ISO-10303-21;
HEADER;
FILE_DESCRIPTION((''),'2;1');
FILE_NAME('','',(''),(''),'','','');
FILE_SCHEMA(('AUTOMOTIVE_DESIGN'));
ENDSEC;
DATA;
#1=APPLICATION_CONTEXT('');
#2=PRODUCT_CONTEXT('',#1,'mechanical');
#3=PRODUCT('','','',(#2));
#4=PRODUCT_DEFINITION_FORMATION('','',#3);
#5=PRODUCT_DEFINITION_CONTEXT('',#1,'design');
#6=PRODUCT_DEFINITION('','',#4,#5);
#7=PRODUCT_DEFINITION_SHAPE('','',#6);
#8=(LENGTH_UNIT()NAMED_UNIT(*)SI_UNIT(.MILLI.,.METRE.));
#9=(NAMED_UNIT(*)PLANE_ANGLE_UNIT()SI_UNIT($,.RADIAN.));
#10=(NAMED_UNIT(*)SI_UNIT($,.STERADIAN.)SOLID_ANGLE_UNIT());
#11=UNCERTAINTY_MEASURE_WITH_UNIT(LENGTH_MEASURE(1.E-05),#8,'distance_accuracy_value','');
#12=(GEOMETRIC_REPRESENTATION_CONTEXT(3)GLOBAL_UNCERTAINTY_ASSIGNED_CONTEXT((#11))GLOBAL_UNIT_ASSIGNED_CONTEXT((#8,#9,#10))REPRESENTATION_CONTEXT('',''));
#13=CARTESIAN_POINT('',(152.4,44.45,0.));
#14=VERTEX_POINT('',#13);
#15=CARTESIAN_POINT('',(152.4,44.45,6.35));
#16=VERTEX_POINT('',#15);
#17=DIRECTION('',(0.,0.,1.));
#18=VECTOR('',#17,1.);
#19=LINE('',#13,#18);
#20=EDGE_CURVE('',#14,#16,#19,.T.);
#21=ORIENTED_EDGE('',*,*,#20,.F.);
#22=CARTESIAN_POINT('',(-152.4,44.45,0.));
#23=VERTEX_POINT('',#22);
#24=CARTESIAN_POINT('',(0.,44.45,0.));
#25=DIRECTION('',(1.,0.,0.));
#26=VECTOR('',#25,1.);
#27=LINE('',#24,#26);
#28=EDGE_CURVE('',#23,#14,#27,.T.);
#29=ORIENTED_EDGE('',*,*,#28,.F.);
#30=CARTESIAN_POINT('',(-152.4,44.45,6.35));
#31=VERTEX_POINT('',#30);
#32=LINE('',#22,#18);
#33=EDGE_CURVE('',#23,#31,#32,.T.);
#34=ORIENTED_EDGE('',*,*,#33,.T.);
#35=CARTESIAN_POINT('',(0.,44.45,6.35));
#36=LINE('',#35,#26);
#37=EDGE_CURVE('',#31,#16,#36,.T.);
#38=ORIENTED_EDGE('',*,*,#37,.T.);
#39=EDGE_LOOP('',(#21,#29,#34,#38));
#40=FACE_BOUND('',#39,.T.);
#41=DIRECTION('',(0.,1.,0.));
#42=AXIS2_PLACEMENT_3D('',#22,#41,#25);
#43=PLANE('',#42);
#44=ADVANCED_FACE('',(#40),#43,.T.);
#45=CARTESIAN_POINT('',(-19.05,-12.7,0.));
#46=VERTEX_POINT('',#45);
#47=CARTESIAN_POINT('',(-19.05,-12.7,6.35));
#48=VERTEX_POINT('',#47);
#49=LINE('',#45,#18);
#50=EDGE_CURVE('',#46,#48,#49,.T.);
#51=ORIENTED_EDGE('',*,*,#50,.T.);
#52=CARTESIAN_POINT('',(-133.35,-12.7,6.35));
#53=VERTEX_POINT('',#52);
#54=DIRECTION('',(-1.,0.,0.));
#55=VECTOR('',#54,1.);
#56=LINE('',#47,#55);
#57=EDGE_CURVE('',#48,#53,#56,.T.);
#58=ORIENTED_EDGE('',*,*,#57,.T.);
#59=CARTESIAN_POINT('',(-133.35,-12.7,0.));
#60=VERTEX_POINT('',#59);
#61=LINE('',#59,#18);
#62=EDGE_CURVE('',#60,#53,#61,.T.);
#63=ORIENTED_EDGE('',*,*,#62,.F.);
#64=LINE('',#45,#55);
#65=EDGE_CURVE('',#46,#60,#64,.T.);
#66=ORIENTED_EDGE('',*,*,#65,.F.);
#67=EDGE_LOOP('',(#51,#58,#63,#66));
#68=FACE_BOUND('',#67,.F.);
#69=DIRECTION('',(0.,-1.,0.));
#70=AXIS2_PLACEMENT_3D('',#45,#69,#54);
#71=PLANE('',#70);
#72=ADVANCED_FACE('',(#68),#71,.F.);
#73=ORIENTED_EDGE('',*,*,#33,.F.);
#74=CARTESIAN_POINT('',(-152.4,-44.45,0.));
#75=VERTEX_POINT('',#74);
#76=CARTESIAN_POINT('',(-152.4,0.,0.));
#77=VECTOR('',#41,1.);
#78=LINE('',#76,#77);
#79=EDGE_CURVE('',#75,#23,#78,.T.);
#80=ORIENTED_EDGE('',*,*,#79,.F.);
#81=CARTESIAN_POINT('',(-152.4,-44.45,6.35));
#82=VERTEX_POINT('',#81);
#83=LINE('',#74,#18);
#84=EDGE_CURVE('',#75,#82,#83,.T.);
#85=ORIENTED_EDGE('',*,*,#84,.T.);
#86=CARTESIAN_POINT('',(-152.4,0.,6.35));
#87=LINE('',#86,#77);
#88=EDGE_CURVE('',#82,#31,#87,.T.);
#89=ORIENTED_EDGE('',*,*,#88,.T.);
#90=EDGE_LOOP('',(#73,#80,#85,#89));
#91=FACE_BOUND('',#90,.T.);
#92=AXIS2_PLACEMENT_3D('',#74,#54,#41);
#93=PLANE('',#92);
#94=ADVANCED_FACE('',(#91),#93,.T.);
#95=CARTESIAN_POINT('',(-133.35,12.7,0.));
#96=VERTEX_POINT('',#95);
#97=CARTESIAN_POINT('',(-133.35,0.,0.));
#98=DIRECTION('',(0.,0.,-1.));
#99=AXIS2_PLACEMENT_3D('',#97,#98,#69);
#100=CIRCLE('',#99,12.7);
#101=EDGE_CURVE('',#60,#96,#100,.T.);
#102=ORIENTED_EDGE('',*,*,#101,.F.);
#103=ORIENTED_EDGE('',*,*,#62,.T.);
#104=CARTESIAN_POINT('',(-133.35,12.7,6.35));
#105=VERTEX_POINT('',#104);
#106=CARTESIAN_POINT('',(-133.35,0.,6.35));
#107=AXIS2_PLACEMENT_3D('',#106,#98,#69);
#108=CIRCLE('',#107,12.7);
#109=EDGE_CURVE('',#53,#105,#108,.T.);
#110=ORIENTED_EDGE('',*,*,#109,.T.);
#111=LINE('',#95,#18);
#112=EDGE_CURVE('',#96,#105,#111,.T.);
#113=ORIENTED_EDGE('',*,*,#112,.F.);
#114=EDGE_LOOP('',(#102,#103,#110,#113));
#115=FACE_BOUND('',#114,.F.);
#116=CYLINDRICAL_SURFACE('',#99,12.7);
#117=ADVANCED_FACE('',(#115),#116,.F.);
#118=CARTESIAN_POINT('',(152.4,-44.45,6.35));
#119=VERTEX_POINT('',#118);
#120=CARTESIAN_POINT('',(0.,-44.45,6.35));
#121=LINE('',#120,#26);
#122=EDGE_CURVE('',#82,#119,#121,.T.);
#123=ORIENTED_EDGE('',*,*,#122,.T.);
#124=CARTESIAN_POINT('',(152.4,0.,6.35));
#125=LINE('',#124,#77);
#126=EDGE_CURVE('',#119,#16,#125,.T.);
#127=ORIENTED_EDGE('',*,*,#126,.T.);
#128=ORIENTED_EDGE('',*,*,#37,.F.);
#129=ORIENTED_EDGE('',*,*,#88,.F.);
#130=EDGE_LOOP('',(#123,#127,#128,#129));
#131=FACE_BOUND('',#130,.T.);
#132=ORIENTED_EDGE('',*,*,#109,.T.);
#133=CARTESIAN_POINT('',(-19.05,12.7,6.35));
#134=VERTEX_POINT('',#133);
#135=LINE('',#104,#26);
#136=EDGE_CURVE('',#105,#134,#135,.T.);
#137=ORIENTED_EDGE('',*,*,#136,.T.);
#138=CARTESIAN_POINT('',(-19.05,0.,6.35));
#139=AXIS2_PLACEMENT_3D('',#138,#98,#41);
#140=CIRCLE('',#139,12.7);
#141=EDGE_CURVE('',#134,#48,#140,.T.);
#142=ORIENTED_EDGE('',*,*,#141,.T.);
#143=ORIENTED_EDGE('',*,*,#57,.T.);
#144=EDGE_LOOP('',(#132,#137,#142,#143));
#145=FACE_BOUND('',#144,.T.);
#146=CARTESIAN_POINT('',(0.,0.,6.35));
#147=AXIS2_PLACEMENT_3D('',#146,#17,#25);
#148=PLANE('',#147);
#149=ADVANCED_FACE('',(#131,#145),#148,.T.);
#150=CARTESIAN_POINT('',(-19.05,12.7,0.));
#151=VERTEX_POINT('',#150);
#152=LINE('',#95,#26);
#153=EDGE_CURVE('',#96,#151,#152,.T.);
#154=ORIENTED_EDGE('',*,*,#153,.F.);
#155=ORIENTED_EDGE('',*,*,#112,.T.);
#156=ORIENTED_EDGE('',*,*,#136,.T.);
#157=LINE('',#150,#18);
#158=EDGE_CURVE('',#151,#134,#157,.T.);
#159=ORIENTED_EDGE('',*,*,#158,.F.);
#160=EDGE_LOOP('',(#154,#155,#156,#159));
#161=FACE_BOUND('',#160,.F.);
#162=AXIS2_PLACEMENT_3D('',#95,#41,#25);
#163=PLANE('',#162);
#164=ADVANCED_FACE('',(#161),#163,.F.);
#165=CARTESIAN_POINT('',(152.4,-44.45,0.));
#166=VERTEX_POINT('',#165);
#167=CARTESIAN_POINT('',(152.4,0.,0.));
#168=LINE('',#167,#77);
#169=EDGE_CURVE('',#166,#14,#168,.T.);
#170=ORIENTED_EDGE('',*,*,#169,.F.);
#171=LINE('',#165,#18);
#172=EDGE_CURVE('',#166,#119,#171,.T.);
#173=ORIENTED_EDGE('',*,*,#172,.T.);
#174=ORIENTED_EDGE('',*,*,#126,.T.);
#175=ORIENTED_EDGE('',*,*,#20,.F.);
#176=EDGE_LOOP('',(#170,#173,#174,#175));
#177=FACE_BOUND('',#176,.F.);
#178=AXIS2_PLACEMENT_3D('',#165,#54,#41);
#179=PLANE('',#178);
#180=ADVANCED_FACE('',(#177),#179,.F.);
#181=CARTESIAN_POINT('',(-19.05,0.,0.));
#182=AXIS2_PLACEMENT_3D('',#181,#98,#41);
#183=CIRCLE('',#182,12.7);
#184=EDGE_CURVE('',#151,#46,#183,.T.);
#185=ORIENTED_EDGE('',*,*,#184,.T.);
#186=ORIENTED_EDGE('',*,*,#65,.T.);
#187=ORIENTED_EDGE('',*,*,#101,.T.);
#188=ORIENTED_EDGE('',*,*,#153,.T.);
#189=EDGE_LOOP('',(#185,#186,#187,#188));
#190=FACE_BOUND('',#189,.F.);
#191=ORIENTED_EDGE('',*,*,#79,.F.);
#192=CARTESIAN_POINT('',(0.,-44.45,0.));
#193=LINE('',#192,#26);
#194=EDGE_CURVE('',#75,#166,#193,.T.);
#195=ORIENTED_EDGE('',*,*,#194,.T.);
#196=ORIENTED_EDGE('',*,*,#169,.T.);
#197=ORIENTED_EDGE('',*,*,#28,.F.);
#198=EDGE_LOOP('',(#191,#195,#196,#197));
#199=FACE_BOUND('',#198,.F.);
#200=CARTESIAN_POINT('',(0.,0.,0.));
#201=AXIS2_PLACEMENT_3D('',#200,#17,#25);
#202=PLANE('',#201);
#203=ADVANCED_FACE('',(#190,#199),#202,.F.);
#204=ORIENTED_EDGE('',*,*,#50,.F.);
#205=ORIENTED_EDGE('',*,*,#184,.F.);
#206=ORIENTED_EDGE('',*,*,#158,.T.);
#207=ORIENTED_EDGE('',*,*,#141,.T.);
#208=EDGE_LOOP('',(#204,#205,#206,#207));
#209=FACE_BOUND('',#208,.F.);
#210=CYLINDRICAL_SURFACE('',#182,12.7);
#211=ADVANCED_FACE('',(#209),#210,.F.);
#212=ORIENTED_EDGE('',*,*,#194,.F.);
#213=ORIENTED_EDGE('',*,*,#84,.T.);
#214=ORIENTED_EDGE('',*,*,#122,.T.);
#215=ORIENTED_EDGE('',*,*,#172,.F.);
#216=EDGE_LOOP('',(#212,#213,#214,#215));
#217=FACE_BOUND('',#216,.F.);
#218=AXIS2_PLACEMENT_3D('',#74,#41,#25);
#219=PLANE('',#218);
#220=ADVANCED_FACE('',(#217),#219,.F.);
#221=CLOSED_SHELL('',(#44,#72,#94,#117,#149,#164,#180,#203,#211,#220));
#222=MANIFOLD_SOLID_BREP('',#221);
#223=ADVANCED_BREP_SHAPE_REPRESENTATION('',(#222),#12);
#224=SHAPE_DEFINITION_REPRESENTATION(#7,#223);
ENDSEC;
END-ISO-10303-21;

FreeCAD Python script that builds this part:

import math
import FreeCAD as App
import Part
import Sketcher
Q = App.Units.Quantity


def add_polygon(sketch, points):
    """Adds a closed chain of lines whose ends are joined by coincident constraints."""
    first, n = sketch.GeometryCount, len(points)
    for a, b in zip(points, points[1:] + points[:1]):
        sketch.addGeometry(Part.LineSegment(App.Vector(*a, 0), App.Vector(*b, 0)), False)
    for i in range(n):
        sketch.addConstraint(Sketcher.Constraint("Coincident", first + i, 2, first + (i + 1) % n, 1))

doc = App.newDocument("Part")
body = doc.addObject("PartDesign::Body", "Body")

sketch1 = doc.addObject("Sketcher::SketchObject", "Sketch")
body.addObject(sketch1)
sketch1.AttachmentSupport = (doc.XY_Plane, [""])
sketch1.MapMode = "FlatFace"
add_polygon(sketch1, [(-152, 44), (-152, -44), (152, -44), (152, 44)])
sketch1.addGeometry(Part.LineSegment(App.Vector(-19, -13, 0), App.Vector(-133, -13, 0)), False)
sketch1.addGeometry(Part.ArcOfCircle(Part.Circle(App.Vector(-133, 0, 0), App.Vector(0, 0, 1), 13), math.radians(90), math.radians(270)), False)
sketch1.addGeometry(Part.LineSegment(App.Vector(-133, 13, 0), App.Vector(-19, 13, 0)), False)
sketch1.addGeometry(Part.ArcOfCircle(Part.Circle(App.Vector(-19, 0, 0), App.Vector(0, 0, 1), 13), math.radians(-90), math.radians(90)), False)
sketch1.addConstraint(Sketcher.Constraint("Tangent", 4, 2, 5, 2))
sketch1.addConstraint(Sketcher.Constraint("Tangent", 5, 1, 6, 1))
sketch1.addConstraint(Sketcher.Constraint("Tangent", 6, 2, 7, 2))
sketch1.addConstraint(Sketcher.Constraint("Tangent", 7, 1, 4, 1))
sketch1.addConstraint(Sketcher.Constraint("Vertical", 0))
sketch1.addConstraint(Sketcher.Constraint("Horizontal", 1))
sketch1.addConstraint(Sketcher.Constraint("Vertical", 2))
sketch1.addConstraint(Sketcher.Constraint("Horizontal", 3))
sketch1.addConstraint(Sketcher.Constraint("Horizontal", 4))
sketch1.addConstraint(Sketcher.Constraint("Horizontal", 6))
sketch1.addConstraint(Sketcher.Constraint("Symmetric", 0, 2, 2, 2, -1, 1))
sketch1.addConstraint(Sketcher.Constraint("PointOnObject", 5, 3, -1))
sketch1.addConstraint(Sketcher.Constraint("Radius", 5, Q("0.5 in")))
sketch1.addConstraint(Sketcher.Constraint("DistanceX", 1, 1, 1, 2, Q("12 in")))
sketch1.addConstraint(Sketcher.Constraint("DistanceX", 4, 2, 4, 1, Q("4.5 in")))
sketch1.addConstraint(Sketcher.Constraint("DistanceY", 0, 2, 0, 1, Q("3.5 in")))
sketch1.addConstraint(Sketcher.Constraint("DistanceX", 5, 3, -1, 1, Q("5.25 in")))
pad1 = doc.addObject("PartDesign::Pad", "Pad")
body.addObject(pad1)
pad1.Profile = sketch1
pad1.Length = Q("0.25 in")

doc.recompute()
